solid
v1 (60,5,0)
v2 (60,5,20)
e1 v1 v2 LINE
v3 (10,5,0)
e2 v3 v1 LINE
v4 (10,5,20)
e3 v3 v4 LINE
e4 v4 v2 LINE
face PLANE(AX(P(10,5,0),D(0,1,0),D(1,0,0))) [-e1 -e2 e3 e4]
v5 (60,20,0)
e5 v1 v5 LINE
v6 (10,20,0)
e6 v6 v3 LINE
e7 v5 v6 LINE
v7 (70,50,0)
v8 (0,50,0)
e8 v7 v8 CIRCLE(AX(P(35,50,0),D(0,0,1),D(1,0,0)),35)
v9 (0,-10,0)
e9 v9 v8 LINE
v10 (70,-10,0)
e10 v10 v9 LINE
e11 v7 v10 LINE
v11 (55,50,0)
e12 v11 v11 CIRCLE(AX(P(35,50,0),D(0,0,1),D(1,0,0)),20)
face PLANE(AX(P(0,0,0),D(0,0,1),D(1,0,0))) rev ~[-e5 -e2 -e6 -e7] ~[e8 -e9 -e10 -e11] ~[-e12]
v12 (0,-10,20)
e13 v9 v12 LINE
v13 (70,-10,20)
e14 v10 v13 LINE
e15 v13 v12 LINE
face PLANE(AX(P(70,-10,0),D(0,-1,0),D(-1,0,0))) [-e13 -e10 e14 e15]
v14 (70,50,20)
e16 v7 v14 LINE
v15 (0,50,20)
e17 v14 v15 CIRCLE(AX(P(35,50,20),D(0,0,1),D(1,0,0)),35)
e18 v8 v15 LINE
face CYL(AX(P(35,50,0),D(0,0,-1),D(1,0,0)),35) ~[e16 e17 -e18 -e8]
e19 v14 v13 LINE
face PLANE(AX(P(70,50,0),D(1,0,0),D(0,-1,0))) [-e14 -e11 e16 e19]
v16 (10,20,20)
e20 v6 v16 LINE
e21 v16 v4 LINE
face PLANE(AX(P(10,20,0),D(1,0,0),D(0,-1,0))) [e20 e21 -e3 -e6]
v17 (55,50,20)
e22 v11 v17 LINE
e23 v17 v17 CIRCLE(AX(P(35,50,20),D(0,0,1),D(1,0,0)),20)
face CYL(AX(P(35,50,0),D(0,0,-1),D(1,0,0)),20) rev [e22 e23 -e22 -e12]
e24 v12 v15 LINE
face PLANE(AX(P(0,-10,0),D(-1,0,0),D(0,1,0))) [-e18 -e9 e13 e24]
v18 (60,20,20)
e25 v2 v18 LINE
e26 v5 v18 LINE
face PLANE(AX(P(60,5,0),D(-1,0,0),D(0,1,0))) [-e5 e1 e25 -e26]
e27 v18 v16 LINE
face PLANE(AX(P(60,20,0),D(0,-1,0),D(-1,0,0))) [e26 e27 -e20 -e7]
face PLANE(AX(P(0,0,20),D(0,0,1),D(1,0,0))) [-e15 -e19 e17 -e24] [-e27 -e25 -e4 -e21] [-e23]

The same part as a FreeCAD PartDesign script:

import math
import FreeCAD as App
import Part
import Sketcher
from FreeCAD import Vector
Q = App.Units.Quantity

doc = App.newDocument("Part")
body = doc.addObject("PartDesign::Body", "Body")

# Sketch on XY plane
sketch1 = body.newObject("Sketcher::SketchObject", "Sketch")
sketch1.AttachmentSupport = (doc.getObject("XY_Plane"), [""])
sketch1.MapMode = "FlatFace"
sketch1.addGeometry(Part.LineSegment(Vector(70, -10, 0), Vector(70, 50, 0)), False)
sketch1.addGeometry(Part.ArcOfCircle(Part.Circle(Vector(35, 50, 0), Vector(0, 0, 1), 35), math.radians(0), math.radians(180)), False)
sketch1.addGeometry(Part.LineSegment(Vector(0, 50, 0), Vector(0, -10, 0)), False)
sketch1.addGeometry(Part.LineSegment(Vector(0, -10, 0), Vector(70, -10, 0)), False)
sketch1.addGeometry(Part.LineSegment(Vector(60, 5, 0), Vector(10, 5, 0)), False)
sketch1.addGeometry(Part.LineSegment(Vector(10, 5, 0), Vector(10, 20, 0)), False)
sketch1.addGeometry(Part.LineSegment(Vector(10, 20, 0), Vector(60, 20, 0)), False)
sketch1.addGeometry(Part.LineSegment(Vector(60, 20, 0), Vector(60, 5, 0)), False)
sketch1.addGeometry(Part.Circle(Vector(35, 50, 0), Vector(0, 0, 1), 20), False)
sketch1.addConstraint(Sketcher.Constraint("Tangent", 0, 2, 1, 1))
sketch1.addConstraint(Sketcher.Constraint("Tangent", 1, 2, 2, 1))
sketch1.addConstraint(Sketcher.Constraint("Coincident", 2, 2, 3, 1))
sketch1.addConstraint(Sketcher.Constraint("Coincident", 3, 2, 0, 1))
sketch1.addConstraint(Sketcher.Constraint("Coincident", 4, 2, 5, 1))
sketch1.addConstraint(Sketcher.Constraint("Coincident", 5, 2, 6, 1))
sketch1.addConstraint(Sketcher.Constraint("Coincident", 6, 2, 7, 1))
sketch1.addConstraint(Sketcher.Constraint("Coincident", 7, 2, 4, 1))
sketch1.addConstraint(Sketcher.Constraint("Vertical", 0))
sketch1.addConstraint(Sketcher.Constraint("Vertical", 2))
sketch1.addConstraint(Sketcher.Constraint("Horizontal", 3))
sketch1.addConstraint(Sketcher.Constraint("Horizontal", 4))
sketch1.addConstraint(Sketcher.Constraint("Vertical", 5))
sketch1.addConstraint(Sketcher.Constraint("Horizontal", 6))
sketch1.addConstraint(Sketcher.Constraint("Vertical", 7))
sketch1.addConstraint(Sketcher.Constraint("Coincident", 8, 3, 1, 3))
sketch1.addConstraint(Sketcher.Constraint("PointOnObject", 1, 2, -2))
sketch1.addConstraint(Sketcher.Constraint("Diameter", 8, Q("40 mm")))
sketch1.addConstraint(Sketcher.Constraint("Radius", 1, Q("35 mm")))
sketch1.addConstraint(Sketcher.Constraint("DistanceX", 4, 2, 4, 1, Q("50 mm")))
sketch1.addConstraint(Sketcher.Constraint("DistanceY", 0, 1, 0, 2, Q("60 mm")))
sketch1.addConstraint(Sketcher.Constraint("DistanceY", 5, 1, 5, 2, Q("15 mm")))
sketch1.addConstraint(Sketcher.Constraint("DistanceY", -1, 1, 1, 3, Q("50 mm")))
sketch1.addConstraint(Sketcher.Constraint("DistanceX", -1, 1, 4, 2, Q("10 mm")))
sketch1.addConstraint(Sketcher.Constraint("DistanceY", -1, 1, 4, 2, Q("5 mm")))
pad1 = body.newObject("PartDesign::Pad", "Pad")
pad1.Profile = sketch1
pad1.Length = 20

doc.recompute()
